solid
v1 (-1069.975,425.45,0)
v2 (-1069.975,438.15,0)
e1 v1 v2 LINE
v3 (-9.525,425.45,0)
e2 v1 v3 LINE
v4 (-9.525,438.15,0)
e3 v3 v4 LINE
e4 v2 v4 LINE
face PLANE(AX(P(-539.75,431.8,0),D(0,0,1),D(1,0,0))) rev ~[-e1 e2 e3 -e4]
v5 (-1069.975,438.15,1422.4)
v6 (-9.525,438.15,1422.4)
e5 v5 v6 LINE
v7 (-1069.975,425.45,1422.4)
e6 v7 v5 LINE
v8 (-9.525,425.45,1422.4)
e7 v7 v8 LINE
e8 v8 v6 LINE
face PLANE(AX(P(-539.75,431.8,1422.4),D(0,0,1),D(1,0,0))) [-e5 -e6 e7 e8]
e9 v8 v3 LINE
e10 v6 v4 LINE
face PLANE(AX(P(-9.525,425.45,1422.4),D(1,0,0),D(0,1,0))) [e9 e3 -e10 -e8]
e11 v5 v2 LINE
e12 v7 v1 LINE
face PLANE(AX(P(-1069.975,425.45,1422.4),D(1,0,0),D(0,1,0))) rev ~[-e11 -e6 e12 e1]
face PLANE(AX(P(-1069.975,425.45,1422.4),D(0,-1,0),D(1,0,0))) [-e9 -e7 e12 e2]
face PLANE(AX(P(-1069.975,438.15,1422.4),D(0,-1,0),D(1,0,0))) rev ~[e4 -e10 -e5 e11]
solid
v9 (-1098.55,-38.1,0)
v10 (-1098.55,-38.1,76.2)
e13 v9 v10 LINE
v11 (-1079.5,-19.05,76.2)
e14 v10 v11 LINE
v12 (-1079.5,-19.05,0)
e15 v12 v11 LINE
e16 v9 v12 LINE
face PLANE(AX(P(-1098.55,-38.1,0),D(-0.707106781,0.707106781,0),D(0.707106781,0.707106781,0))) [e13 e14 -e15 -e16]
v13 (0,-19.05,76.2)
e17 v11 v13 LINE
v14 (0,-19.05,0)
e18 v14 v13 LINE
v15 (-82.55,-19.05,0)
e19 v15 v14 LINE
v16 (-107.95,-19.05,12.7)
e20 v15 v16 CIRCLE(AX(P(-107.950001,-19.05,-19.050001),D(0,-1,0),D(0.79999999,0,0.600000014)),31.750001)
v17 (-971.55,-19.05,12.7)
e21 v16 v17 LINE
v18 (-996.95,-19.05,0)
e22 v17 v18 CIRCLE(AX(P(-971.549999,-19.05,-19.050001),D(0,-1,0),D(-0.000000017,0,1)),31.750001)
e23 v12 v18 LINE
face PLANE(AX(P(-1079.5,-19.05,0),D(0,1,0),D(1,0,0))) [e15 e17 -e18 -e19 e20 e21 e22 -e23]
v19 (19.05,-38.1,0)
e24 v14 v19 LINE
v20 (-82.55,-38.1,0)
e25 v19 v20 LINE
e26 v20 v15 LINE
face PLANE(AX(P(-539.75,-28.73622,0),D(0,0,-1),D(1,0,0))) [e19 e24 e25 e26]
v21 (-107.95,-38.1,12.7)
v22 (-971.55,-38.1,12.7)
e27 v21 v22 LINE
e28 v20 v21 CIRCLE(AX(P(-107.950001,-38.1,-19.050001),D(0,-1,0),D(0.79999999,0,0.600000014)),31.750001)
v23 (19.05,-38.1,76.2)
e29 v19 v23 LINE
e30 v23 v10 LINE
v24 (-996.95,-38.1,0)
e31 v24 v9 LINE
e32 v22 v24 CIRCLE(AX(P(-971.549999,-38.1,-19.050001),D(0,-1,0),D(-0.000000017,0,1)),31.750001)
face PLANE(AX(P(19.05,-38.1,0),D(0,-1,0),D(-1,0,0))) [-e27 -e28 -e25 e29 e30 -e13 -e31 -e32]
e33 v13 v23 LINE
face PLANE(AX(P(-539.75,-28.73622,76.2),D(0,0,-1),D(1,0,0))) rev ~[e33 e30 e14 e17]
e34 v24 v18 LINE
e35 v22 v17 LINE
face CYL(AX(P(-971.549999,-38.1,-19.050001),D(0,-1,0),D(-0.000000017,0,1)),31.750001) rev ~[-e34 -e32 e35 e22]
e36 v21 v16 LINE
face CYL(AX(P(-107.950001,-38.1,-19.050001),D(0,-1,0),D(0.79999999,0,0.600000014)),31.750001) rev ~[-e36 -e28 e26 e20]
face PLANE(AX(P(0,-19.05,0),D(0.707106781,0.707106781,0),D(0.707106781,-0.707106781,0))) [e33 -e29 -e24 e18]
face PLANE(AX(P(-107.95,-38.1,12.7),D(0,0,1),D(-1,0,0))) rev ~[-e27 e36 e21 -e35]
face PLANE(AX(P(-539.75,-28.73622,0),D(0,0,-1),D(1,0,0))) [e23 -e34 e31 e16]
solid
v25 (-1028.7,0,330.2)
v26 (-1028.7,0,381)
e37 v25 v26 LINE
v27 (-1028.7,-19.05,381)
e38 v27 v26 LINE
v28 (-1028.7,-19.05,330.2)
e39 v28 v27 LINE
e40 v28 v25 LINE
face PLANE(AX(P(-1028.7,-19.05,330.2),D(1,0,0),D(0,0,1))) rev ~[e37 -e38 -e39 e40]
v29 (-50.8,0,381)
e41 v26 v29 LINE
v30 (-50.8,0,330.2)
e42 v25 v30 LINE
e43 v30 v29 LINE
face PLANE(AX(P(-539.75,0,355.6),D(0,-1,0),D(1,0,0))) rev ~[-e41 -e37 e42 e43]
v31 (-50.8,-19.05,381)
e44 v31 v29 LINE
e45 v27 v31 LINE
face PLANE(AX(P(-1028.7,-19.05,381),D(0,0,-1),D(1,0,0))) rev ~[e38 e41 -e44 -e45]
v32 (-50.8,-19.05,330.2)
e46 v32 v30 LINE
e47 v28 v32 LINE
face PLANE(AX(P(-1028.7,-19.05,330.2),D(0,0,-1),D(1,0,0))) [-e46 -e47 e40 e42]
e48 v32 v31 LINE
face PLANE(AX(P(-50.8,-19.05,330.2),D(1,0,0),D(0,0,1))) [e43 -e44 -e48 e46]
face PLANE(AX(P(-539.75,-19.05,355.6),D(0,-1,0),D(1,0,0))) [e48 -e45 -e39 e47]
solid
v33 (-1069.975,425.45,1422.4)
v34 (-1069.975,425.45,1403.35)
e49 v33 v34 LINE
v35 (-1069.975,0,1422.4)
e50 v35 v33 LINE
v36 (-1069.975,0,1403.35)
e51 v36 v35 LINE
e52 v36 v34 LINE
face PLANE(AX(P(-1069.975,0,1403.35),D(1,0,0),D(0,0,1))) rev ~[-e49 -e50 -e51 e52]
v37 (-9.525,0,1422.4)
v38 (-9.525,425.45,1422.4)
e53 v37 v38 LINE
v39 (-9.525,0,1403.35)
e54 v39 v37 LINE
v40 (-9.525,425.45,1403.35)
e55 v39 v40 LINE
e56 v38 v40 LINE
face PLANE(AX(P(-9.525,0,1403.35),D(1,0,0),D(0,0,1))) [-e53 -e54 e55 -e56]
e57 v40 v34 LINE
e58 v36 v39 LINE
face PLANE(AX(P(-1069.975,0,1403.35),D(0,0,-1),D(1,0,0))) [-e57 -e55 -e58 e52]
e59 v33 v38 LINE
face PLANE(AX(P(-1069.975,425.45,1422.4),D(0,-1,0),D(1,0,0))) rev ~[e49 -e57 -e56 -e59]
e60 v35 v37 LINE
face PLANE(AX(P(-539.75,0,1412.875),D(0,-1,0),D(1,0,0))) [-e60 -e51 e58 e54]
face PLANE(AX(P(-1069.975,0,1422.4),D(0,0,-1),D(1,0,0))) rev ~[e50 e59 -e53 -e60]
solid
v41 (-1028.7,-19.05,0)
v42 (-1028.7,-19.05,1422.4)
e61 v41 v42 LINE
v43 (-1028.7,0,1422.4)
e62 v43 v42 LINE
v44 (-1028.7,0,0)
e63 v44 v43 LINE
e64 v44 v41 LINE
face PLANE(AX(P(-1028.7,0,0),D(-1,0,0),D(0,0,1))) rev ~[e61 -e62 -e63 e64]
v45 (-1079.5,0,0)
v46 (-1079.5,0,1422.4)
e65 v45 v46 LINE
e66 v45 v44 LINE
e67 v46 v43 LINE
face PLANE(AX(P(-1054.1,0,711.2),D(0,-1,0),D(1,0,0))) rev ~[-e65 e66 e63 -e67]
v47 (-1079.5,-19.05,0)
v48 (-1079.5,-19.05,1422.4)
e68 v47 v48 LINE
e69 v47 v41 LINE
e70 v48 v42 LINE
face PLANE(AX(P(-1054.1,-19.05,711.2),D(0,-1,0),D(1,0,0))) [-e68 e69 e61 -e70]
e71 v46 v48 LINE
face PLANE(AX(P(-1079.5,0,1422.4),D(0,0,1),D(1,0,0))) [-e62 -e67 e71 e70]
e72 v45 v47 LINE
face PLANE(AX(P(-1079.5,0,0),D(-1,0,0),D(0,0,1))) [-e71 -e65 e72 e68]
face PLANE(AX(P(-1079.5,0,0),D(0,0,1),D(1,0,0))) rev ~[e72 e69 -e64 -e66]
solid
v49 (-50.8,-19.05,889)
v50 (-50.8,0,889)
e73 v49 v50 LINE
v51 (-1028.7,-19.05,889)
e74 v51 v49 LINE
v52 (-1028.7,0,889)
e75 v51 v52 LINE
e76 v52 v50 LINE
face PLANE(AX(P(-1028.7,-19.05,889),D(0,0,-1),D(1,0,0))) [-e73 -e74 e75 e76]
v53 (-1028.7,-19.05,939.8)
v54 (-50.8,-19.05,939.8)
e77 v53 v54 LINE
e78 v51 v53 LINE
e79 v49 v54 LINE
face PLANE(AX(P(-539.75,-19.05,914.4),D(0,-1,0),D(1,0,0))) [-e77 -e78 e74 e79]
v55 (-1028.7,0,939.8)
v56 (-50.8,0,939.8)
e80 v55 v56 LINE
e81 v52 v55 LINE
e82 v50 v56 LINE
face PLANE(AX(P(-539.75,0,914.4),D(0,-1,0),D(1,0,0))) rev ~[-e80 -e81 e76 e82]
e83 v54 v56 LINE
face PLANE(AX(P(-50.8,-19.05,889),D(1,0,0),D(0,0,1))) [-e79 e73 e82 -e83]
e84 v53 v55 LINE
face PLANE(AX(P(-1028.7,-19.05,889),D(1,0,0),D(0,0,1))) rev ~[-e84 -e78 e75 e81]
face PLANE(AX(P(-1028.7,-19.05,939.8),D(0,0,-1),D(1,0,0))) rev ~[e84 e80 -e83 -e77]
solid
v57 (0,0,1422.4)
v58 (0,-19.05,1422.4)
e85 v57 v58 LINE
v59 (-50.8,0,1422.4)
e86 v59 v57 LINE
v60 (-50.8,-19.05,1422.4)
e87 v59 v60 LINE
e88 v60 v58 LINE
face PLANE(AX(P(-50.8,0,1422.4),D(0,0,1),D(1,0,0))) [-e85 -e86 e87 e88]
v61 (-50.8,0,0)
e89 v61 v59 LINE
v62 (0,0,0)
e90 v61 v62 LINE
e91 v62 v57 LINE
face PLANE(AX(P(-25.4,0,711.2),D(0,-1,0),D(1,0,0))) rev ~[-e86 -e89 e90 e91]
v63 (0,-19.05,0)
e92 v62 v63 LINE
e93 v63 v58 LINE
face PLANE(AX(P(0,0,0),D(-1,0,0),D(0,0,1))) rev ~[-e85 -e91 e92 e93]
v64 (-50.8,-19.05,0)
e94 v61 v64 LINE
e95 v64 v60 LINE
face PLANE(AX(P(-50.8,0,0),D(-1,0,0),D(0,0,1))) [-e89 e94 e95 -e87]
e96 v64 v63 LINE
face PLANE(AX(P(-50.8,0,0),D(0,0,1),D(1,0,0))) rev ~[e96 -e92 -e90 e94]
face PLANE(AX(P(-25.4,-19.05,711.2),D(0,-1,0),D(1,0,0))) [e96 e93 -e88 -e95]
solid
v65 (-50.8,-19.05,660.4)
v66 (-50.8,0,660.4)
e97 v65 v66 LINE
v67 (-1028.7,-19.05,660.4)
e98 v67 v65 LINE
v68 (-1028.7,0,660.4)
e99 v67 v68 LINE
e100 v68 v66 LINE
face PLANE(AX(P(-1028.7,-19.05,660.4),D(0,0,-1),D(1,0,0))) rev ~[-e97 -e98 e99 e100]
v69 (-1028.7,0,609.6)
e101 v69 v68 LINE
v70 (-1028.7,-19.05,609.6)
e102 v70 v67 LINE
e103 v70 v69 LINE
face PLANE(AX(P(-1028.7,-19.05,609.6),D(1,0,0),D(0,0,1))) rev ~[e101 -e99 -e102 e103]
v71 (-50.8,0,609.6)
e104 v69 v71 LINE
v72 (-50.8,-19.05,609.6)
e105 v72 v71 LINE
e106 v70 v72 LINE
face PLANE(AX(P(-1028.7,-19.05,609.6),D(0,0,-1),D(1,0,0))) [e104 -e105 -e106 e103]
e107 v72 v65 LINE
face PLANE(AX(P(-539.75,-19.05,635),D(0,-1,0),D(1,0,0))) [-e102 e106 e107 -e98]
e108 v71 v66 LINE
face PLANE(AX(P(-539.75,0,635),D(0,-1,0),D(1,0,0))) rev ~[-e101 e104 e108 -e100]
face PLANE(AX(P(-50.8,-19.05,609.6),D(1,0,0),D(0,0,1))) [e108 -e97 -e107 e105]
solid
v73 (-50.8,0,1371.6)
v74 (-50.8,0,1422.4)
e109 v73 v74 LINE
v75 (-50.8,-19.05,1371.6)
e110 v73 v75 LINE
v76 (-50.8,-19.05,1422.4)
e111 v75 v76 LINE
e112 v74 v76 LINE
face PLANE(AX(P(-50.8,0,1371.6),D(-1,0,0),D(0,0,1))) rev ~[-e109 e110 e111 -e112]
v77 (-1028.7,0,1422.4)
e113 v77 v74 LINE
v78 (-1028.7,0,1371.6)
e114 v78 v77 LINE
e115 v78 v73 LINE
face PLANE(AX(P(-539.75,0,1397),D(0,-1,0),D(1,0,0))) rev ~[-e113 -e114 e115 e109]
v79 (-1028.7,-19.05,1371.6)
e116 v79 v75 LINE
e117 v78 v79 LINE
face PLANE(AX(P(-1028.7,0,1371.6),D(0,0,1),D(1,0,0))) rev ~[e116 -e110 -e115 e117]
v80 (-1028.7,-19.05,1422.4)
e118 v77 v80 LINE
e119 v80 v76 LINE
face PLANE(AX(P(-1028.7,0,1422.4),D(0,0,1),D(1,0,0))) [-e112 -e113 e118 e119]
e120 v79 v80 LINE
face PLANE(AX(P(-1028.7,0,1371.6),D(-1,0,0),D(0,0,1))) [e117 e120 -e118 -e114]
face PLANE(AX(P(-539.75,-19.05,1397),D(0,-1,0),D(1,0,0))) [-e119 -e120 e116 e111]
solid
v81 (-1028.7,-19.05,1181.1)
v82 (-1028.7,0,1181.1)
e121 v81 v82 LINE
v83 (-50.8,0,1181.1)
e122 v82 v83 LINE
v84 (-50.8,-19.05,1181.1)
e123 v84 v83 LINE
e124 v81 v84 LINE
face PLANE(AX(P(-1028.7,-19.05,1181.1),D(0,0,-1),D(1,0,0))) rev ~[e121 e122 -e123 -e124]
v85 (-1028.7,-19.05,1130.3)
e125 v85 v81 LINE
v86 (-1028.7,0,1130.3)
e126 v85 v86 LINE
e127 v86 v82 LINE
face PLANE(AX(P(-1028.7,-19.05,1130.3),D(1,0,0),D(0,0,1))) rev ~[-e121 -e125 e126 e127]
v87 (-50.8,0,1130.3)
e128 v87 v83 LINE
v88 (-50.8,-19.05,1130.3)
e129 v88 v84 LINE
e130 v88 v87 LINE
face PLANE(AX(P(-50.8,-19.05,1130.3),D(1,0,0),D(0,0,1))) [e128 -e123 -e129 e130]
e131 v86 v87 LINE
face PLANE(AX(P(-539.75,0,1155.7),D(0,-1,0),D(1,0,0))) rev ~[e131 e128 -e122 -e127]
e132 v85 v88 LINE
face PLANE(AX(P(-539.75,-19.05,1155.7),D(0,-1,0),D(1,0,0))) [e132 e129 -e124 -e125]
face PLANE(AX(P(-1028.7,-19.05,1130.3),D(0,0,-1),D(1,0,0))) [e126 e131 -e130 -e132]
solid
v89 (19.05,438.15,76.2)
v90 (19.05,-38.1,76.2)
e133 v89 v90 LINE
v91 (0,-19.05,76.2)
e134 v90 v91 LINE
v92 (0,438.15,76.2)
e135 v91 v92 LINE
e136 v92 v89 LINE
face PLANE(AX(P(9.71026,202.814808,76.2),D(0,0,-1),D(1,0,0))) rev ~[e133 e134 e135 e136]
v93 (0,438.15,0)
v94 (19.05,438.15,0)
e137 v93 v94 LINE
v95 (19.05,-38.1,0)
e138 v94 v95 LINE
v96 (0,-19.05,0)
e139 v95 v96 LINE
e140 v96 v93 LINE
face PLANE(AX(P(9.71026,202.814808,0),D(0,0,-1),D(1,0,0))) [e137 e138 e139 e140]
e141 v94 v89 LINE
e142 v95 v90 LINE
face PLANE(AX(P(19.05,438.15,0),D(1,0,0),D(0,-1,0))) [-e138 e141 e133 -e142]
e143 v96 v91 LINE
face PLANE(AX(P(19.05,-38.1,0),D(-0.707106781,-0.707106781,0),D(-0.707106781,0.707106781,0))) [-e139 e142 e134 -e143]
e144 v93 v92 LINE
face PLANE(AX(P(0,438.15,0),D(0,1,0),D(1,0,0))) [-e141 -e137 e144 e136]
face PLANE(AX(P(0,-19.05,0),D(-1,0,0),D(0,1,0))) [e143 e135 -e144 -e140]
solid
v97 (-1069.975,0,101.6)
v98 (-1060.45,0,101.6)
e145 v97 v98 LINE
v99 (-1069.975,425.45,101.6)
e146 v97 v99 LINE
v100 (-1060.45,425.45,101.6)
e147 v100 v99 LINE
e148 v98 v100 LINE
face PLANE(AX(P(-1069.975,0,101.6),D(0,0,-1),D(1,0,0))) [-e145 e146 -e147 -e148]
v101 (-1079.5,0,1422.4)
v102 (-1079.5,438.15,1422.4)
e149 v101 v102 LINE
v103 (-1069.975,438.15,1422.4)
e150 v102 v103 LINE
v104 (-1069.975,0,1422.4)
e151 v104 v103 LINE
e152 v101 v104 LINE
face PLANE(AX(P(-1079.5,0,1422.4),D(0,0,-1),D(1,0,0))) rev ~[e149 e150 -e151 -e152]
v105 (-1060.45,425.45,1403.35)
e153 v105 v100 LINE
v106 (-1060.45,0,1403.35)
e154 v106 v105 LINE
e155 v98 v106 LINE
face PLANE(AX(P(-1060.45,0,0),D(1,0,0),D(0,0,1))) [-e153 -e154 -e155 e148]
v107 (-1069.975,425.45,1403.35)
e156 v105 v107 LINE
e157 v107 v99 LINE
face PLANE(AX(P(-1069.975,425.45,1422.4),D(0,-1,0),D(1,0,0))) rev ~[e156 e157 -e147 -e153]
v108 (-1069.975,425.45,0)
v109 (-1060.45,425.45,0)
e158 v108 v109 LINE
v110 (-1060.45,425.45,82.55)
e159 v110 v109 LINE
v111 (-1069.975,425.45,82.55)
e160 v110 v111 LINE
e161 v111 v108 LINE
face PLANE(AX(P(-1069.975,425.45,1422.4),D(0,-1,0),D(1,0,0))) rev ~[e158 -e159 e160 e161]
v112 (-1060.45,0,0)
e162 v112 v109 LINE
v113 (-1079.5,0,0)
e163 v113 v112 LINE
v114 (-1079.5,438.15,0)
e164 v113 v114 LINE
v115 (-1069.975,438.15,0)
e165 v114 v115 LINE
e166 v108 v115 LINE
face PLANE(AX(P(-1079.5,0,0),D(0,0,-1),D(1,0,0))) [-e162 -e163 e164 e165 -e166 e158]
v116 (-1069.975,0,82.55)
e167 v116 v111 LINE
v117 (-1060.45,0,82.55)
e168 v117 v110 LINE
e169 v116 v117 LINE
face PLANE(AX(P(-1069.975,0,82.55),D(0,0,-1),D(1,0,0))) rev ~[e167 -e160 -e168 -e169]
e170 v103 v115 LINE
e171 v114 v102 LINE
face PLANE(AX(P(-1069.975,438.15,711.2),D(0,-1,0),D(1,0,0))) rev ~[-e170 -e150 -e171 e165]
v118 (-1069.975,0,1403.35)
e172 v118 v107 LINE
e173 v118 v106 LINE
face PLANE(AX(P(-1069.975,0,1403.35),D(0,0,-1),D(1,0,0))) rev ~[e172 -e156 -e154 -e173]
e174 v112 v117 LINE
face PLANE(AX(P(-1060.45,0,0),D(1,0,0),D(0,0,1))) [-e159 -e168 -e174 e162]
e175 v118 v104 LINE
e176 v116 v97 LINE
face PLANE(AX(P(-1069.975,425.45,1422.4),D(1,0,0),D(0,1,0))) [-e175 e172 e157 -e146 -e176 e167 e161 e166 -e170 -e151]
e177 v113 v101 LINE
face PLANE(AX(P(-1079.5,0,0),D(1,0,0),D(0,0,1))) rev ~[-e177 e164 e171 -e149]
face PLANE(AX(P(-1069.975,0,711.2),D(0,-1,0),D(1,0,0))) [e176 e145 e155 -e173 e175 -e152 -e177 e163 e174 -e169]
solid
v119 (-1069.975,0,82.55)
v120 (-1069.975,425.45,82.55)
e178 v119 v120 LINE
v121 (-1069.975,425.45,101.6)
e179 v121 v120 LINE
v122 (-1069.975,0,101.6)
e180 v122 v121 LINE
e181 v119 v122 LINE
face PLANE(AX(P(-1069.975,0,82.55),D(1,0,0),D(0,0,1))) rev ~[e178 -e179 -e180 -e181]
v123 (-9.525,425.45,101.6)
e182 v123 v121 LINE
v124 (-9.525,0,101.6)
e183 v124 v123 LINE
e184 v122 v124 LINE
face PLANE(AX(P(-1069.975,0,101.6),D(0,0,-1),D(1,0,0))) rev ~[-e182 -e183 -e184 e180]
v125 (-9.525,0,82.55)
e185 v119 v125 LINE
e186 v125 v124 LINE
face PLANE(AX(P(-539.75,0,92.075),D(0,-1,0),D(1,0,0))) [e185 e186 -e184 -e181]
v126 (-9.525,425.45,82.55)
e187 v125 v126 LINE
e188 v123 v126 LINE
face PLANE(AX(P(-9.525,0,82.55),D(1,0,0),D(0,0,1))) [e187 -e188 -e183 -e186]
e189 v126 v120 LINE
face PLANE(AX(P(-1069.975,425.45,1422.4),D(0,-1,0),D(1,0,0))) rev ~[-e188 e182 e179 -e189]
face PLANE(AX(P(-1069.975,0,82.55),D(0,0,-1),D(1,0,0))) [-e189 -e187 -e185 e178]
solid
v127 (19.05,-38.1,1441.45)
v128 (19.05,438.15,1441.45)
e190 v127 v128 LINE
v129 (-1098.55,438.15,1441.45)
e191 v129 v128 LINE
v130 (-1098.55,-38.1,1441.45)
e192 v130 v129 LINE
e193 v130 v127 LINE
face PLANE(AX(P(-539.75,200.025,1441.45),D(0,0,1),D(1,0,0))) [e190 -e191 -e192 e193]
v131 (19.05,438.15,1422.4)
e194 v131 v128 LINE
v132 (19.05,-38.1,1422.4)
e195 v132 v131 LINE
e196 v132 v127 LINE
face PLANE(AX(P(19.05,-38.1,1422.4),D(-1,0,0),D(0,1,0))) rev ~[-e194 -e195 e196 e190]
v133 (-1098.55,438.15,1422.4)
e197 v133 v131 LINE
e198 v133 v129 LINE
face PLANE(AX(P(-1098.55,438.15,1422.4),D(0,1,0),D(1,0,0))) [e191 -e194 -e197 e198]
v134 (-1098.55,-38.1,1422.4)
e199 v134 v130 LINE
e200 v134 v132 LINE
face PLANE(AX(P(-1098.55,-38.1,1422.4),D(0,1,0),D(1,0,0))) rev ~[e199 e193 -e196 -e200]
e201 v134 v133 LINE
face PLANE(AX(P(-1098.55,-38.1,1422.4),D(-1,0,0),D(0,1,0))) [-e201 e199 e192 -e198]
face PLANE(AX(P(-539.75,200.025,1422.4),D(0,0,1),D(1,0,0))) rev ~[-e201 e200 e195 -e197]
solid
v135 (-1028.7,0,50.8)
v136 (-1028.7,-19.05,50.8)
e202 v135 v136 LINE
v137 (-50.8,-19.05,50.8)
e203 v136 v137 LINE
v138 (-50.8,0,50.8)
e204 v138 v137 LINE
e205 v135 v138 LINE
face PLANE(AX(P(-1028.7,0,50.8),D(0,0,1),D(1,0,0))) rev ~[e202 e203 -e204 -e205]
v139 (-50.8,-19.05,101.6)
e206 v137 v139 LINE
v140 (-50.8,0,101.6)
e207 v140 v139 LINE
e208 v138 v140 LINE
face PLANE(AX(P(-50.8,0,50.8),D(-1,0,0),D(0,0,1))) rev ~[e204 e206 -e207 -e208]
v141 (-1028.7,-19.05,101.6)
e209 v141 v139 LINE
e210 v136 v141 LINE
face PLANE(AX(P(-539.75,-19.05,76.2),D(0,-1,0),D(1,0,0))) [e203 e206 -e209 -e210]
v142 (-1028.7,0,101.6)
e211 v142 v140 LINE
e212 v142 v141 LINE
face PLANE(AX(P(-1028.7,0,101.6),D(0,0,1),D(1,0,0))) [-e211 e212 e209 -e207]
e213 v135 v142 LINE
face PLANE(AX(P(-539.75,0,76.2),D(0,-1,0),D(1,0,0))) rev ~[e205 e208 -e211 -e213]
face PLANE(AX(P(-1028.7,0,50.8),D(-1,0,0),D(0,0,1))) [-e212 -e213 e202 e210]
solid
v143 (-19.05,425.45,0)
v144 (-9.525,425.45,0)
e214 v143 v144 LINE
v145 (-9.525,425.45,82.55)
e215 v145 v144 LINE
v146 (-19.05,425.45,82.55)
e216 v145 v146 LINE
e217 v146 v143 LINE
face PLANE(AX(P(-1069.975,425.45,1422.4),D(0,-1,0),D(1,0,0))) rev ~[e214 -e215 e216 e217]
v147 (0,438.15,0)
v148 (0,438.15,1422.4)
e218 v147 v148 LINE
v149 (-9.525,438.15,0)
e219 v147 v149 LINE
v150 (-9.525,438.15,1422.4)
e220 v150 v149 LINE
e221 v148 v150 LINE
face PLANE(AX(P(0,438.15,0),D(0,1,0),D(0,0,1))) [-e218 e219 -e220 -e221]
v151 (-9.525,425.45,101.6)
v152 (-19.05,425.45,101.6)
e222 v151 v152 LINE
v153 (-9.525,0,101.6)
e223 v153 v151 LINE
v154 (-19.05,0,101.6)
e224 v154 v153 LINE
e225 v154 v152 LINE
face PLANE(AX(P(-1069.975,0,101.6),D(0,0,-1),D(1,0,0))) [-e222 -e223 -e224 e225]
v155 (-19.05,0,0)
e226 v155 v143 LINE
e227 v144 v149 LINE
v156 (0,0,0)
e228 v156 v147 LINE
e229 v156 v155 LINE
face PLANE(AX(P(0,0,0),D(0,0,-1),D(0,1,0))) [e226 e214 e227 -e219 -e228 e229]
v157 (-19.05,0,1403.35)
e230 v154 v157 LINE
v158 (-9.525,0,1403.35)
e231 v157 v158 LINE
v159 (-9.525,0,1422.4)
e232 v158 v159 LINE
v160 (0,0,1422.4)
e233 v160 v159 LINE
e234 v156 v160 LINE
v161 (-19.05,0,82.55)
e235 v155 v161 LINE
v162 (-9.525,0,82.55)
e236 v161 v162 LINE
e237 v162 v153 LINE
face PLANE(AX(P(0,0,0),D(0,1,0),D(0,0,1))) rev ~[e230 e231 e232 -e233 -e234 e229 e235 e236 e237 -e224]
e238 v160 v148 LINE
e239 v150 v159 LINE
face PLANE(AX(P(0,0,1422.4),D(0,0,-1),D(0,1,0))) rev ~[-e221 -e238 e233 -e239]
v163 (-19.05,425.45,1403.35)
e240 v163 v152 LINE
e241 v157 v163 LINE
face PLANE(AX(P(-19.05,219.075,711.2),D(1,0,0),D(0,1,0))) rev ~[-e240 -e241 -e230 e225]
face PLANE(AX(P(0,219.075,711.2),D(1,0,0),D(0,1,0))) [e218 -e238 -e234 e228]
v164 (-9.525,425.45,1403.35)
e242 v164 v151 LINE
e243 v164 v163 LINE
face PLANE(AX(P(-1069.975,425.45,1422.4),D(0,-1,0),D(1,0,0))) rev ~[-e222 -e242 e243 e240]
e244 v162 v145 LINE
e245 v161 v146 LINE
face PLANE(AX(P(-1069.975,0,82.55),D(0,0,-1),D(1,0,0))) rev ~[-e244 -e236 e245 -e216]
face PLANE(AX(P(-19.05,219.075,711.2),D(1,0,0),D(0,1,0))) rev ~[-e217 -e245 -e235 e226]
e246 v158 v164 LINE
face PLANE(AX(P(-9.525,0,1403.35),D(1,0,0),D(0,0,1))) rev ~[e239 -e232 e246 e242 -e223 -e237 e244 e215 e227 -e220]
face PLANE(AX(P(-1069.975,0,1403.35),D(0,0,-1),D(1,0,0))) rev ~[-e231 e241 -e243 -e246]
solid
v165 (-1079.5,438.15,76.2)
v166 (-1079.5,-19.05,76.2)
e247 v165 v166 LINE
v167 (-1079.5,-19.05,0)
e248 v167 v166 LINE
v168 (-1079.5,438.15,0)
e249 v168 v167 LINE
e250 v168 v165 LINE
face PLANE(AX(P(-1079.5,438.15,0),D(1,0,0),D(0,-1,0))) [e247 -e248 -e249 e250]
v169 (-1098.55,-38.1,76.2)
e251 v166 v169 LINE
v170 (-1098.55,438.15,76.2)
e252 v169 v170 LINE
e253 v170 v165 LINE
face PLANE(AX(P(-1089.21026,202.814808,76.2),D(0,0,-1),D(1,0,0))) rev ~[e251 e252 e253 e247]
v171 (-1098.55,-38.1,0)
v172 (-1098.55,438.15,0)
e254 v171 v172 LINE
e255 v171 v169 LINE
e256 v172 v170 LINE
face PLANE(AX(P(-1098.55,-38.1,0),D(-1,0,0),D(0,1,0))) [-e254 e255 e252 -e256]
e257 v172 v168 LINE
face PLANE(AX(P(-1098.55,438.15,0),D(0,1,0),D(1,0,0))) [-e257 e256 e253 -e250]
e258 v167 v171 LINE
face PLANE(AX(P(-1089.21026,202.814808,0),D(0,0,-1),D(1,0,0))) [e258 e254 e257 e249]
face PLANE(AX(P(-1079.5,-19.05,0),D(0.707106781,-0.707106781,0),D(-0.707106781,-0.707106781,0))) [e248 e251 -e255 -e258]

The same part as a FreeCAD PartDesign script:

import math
import FreeCAD as App
import Part
import Sketcher
Q = App.Units.Quantity


def add_polygon(sketch, points):
    """Adds a closed chain of lines whose ends are joined by coincident constraints."""
    first, n = sketch.GeometryCount, len(points)
    for a, b in zip(points, points[1:] + points[:1]):
        sketch.addGeometry(Part.LineSegment(App.Vector(*a, 0), App.Vector(*b, 0)), False)
    for i in range(n):
        sketch.addConstraint(Sketcher.Constraint("Coincident", first + i, 2, first + (i + 1) % n, 1))

doc = App.newDocument("Part")
params = doc.addObject("Spreadsheet::Sheet", "Params")
for row, (alias, value) in enumerate([
    ("sketch1_height", "56 in"),
    ("sketch1_width", "17.25 in"),
    ("pad1_length", "0.75 in"),
    ("sketch2_width", "41.75 in"),
    ("sketch2_height", "0.75 in"),
    ("pad2_length", "17.25 in"),
    ("sketch3_height", "56 in"),
    ("sketch3_width", "0.75 in"),
    ("pad3_length", "17.25 in"),
    ("sketch4_width", "41.75 in"),
    ("sketch4_height", "0.75 in"),
    ("pad4_length", "17.25 in"),
    ("sketch5_height", "0.5 in"),
    ("sketch5_width", "41.75 in"),
    ("pad5_length", "56 in"),
    ("sketch6_width", "2 in"),
    ("sketch6_height", "56 in"),
    ("pad6_length", "0.75 in"),
    ("sketch7_width", "2 in"),
    ("sketch7_height", "56 in"),
    ("pad7_length", "0.75 in"),
    ("sketch8_height", "2 in"),
    ("sketch8_width", "38.5 in"),
    ("pad8_length", "0.75 in"),
    ("sketch9_height", "2 in"),
    ("sketch9_width", "38.5 in"),
    ("pad9_length", "0.75 in"),
    ("sketch10_height", "2 in"),
    ("sketch10_width", "38.5 in"),
    ("pad10_length", "0.75 in"),
    ("sketch11_height", "2 in"),
    ("sketch11_width", "38.5 in"),
    ("pad11_length", "0.75 in"),
    ("sketch12_height", "2 in"),
    ("sketch12_width", "38.5 in"),
    ("pad12_length", "0.75 in"),
    ("sketch13_height", "2 in"),
    ("sketch13_width", "38.5 in"),
    ("pad13_length", "0.75 in"),
    ("sketch14_width", "44 in"),
    ("sketch14_height", "18.75 in"),
    ("pad14_length", "0.75 in"),
    ("sketch15_height", "18 in"),
    ("sketch15_width", "0.75 in"),
    ("pad15_length", "3 in"),
    ("sketch16_height", "18 in"),
    ("sketch16_width", "0.75 in"),
    ("pad16_length", "3 in"),
    ("sketch17_width", "44 in"),
    ("sketch17_width2", "42.5 in"),
    ("pad17_length", "3 in"),
    ("sketch18_width", "34 in"),
    ("sketch18_width2", "36 in"),
    ("sketch18_radius", "1.25 in"),
    ("pocket1_length", "0.75 in"),
], start=1):
    params.set(f"A{row}", alias)
    params.set(f"B{row}", "=" + value)
    params.setAlias(f"B{row}", alias)

body = doc.addObject("PartDesign::Body", "Body")

# Sketch on YZ plane
sketch1 = body.newObject("Sketcher::SketchObject", "Sketch")
sketch1.AttachmentSupport = (doc.getObject("YZ_Plane"), [""])
sketch1.MapMode = "FlatFace"
add_polygon(sketch1, [(0, 1422), (0, 0), (438, 0), (438, 1422)])  # lines 0-3
sketch1.addConstraint(Sketcher.Constraint("Vertical", 0))
sketch1.addConstraint(Sketcher.Constraint("Horizontal", 1))
sketch1.addConstraint(Sketcher.Constraint("Vertical", 2))
sketch1.addConstraint(Sketcher.Constraint("Horizontal", 3))
sketch1.addConstraint(Sketcher.Constraint("Coincident", 0, 2, -1, 1))
sketch1.addConstraint(Sketcher.Constraint("DistanceY", 0, 2, 0, 1, Q("56 in")))
sketch1.addConstraint(Sketcher.Constraint("DistanceX", 1, 1, 1, 2, Q("17.25 in")))
sketch1.setExpression("Constraints[9]", "Params.sketch1_height")
sketch1.setExpression("Constraints[10]", "Params.sketch1_width")
pad1 = body.newObject("PartDesign::Pad", "Pad")
pad1.Profile = sketch1
pad1.setExpression("Length", "Params.pad1_length")
pad1.Reversed = True
body2 = doc.addObject("PartDesign::Body", "Body001")

# Sketch on XZ plane
sketch2 = body2.newObject("Sketcher::SketchObject", "Sketch001")
sketch2.AttachmentSupport = (doc.getObject("XZ_Plane001"), [""])
sketch2.MapMode = "FlatFace"
add_polygon(sketch2, [(-1070, 102), (-1070, 83), (-10, 83), (-10, 102)])  # lines 0-3
sketch2.addConstraint(Sketcher.Constraint("Vertical", 0))
sketch2.addConstraint(Sketcher.Constraint("Horizontal", 1))
sketch2.addConstraint(Sketcher.Constraint("Vertical", 2))
sketch2.addConstraint(Sketcher.Constraint("Horizontal", 3))
sketch2.addConstraint(Sketcher.Constraint("DistanceY", -1, 1, 2, 2, Q("4 in")))
sketch2.addConstraint(Sketcher.Constraint("DistanceX", 1, 1, 1, 2, Q("41.75 in")))
sketch2.addConstraint(Sketcher.Constraint("DistanceY", 0, 2, 0, 1, Q("0.75 in")))
sketch2.addConstraint(Sketcher.Constraint("DistanceX", 0, 2, -1, 1, Q("42.125 in")))
sketch2.setExpression("Constraints[9]", "Params.sketch2_width")
sketch2.setExpression("Constraints[10]", "Params.sketch2_height")
pad2 = body2.newObject("PartDesign::Pad", "Pad001")
pad2.Profile = sketch2
pad2.setExpression("Length", "Params.pad2_length")
pad2.Reversed = True
doc.recompute()

body3 = doc.addObject("PartDesign::Body", "Body002")
body3.BaseFeature = body2
boolean = body.newObject("PartDesign::Boolean", "Boolean")
boolean.Type = "Cut"
boolean.addObjects([body3])
doc.recompute()
body4 = doc.addObject("PartDesign::Body", "Body003")

# Sketch on XZ plane
sketch3 = body4.newObject("Sketcher::SketchObject", "Sketch002")
sketch3.AttachmentSupport = (doc.getObject("XZ_Plane003"), [""])
sketch3.MapMode = "FlatFace"
add_polygon(sketch3, [(-1080, 1422), (-1080, 0), (-1060, 0), (-1060, 1422)])  # lines 0-3
sketch3.addConstraint(Sketcher.Constraint("Vertical", 0))
sketch3.addConstraint(Sketcher.Constraint("Horizontal", 1))
sketch3.addConstraint(Sketcher.Constraint("Vertical", 2))
sketch3.addConstraint(Sketcher.Constraint("Horizontal", 3))
sketch3.addConstraint(Sketcher.Constraint("PointOnObject", 0, 2, -1))
sketch3.addConstraint(Sketcher.Constraint("DistanceY", 0, 2, 0, 1, Q("56 in")))
sketch3.addConstraint(Sketcher.Constraint("DistanceX", 1, 1, 1, 2, Q("0.75 in")))
sketch3.addConstraint(Sketcher.Constraint("DistanceX", 0, 2, -1, 1, Q("42.5 in")))
sketch3.setExpression("Constraints[9]", "Params.sketch3_height")
sketch3.setExpression("Constraints[10]", "Params.sketch3_width")
pad3 = body4.newObject("PartDesign::Pad", "Pad002")
pad3.Profile = sketch3
pad3.setExpression("Length", "Params.pad3_length")
pad3.Reversed = True
doc.recompute()

body5 = doc.addObject("PartDesign::Body", "Body004")
body5.BaseFeature = body2
boolean2 = body4.newObject("PartDesign::Boolean", "Boolean001")
boolean2.Type = "Cut"
boolean2.addObjects([body5])
doc.recompute()
body6 = doc.addObject("PartDesign::Body", "Body005")

# Sketch on XZ plane
sketch4 = body6.newObject("Sketcher::SketchObject", "Sketch003")
sketch4.AttachmentSupport = (doc.getObject("XZ_Plane005"), [""])
sketch4.MapMode = "FlatFace"
add_polygon(sketch4, [(-1070, 1422), (-1070, 1403), (-10, 1403), (-10, 1422)])  # lines 0-3
sketch4.addConstraint(Sketcher.Constraint("Vertical", 0))
sketch4.addConstraint(Sketcher.Constraint("Horizontal", 1))
sketch4.addConstraint(Sketcher.Constraint("Vertical", 2))
sketch4.addConstraint(Sketcher.Constraint("Horizontal", 3))
sketch4.addConstraint(Sketcher.Constraint("DistanceY", -1, 1, 2, 2, Q("56 in")))
sketch4.addConstraint(Sketcher.Constraint("DistanceX", 1, 1, 1, 2, Q("41.75 in")))
sketch4.addConstraint(Sketcher.Constraint("DistanceY", 0, 2, 0, 1, Q("0.75 in")))
sketch4.addConstraint(Sketcher.Constraint("DistanceX", 0, 2, -1, 1, Q("42.125 in")))
sketch4.setExpression("Constraints[9]", "Params.sketch4_width")
sketch4.setExpression("Constraints[10]", "Params.sketch4_height")
pad4 = body6.newObject("PartDesign::Pad", "Pad003")
pad4.Profile = sketch4
pad4.setExpression("Length", "Params.pad4_length")
pad4.Reversed = True
doc.recompute()

body7 = doc.addObject("PartDesign::Body", "Body006")
body7.BaseFeature = body6
boolean3 = body4.newObject("PartDesign::Boolean", "Boolean002")
boolean3.Type = "Cut"
boolean3.addObjects([body7])
doc.recompute()

body8 = doc.addObject("PartDesign::Body", "Body007")
body8.BaseFeature = body6
boolean4 = body.newObject("PartDesign::Boolean", "Boolean003")
boolean4.Type = "Cut"
boolean4.addObjects([body8])
doc.recompute()
body9 = doc.addObject("PartDesign::Body", "Body008")

# Sketch on XY plane
sketch5 = body9.newObject("Sketcher::SketchObject", "Sketch004")
sketch5.AttachmentSupport = (doc.getObject("XY_Plane008"), [""])
sketch5.MapMode = "FlatFace"
sketch5.AttachmentOffset = App.Placement(App.Vector(0, 0, 56 * 25.4), App.Rotation())
add_polygon(sketch5, [(-1070, 438), (-1070, 425), (-10, 425), (-10, 438)])  # lines 0-3
sketch5.addConstraint(Sketcher.Constraint("Vertical", 0))
sketch5.addConstraint(Sketcher.Constraint("Horizontal", 1))
sketch5.addConstraint(Sketcher.Constraint("Vertical", 2))
sketch5.addConstraint(Sketcher.Constraint("Horizontal", 3))
sketch5.addConstraint(Sketcher.Constraint("DistanceY", 0, 2, 0, 1, Q("0.5 in")))
sketch5.addConstraint(Sketcher.Constraint("DistanceX", 1, 1, 1, 2, Q("41.75 in")))
sketch5.addConstraint(Sketcher.Constraint("DistanceY", -1, 1, 0, 2, Q("16.75 in")))
sketch5.addConstraint(Sketcher.Constraint("DistanceX", 0, 2, -1, 1, Q("42.125 in")))
sketch5.setExpression("Constraints[8]", "Params.sketch5_height")
sketch5.setExpression("Constraints[9]", "Params.sketch5_width")
pad5 = body9.newObject("PartDesign::Pad", "Pad004")
pad5.Profile = sketch5
pad5.setExpression("Length", "Params.pad5_length")
pad5.Reversed = True
doc.recompute()

body10 = doc.addObject("PartDesign::Body", "Body009")
body10.BaseFeature = body9
boolean5 = body4.newObject("PartDesign::Boolean", "Boolean004")
boolean5.Type = "Cut"
boolean5.addObjects([body10])
doc.recompute()

body11 = doc.addObject("PartDesign::Body", "Body010")
body11.BaseFeature = body9
boolean6 = body6.newObject("PartDesign::Boolean", "Boolean005")
boolean6.Type = "Cut"
boolean6.addObjects([body11])
doc.recompute()

body12 = doc.addObject("PartDesign::Body", "Body011")
body12.BaseFeature = body9
boolean7 = body.newObject("PartDesign::Boolean", "Boolean006")
boolean7.Type = "Cut"
boolean7.addObjects([body12])
doc.recompute()

body13 = doc.addObject("PartDesign::Body", "Body012")
body13.BaseFeature = body9
boolean8 = body2.newObject("PartDesign::Boolean", "Boolean007")
boolean8.Type = "Cut"
boolean8.addObjects([body13])
doc.recompute()
body14 = doc.addObject("PartDesign::Body", "Body013")

# Sketch on XZ plane
sketch6 = body14.newObject("Sketcher::SketchObject", "Sketch005")
sketch6.AttachmentSupport = (doc.getObject("XZ_Plane013"), [""])
sketch6.MapMode = "FlatFace"
add_polygon(sketch6, [(-1080, 1422), (-1080, 0), (-1029, 0), (-1029, 1422)])  # lines 0-3
sketch6.addConstraint(Sketcher.Constraint("Vertical", 0))
sketch6.addConstraint(Sketcher.Constraint("Horizontal", 1))
sketch6.addConstraint(Sketcher.Constraint("Vertical", 2))
sketch6.addConstraint(Sketcher.Constraint("Horizontal", 3))
sketch6.addConstraint(Sketcher.Constraint("PointOnObject", 0, 2, -1))
sketch6.addConstraint(Sketcher.Constraint("DistanceX", 1, 1, 1, 2, Q("2 in")))
sketch6.addConstraint(Sketcher.Constraint("DistanceY", 0, 2, 0, 1, Q("56 in")))
sketch6.addConstraint(Sketcher.Constraint("DistanceX", 0, 2, -1, 1, Q("42.5 in")))
sketch6.setExpression("Constraints[9]", "Params.sketch6_width")
sketch6.setExpression("Constraints[10]", "Params.sketch6_height")
pad6 = body14.newObject("PartDesign::Pad", "Pad005")
pad6.Profile = sketch6
pad6.setExpression("Length", "Params.pad6_length")
body15 = doc.addObject("PartDesign::Body", "Body014")

# Sketch on XZ plane
sketch7 = body15.newObject("Sketcher::SketchObject", "Sketch006")
sketch7.AttachmentSupport = (doc.getObject("XZ_Plane014"), [""])
sketch7.MapMode = "FlatFace"
add_polygon(sketch7, [(-51, 1422), (-51, 0), (0, 0), (0, 1422)])  # lines 0-3
sketch7.addConstraint(Sketcher.Constraint("Vertical", 0))
sketch7.addConstraint(Sketcher.Constraint("Horizontal", 1))
sketch7.addConstraint(Sketcher.Constraint("Vertical", 2))
sketch7.addConstraint(Sketcher.Constraint("Horizontal", 3))
sketch7.addConstraint(Sketcher.Constraint("Coincident", 1, 2, -1, 1))
sketch7.addConstraint(Sketcher.Constraint("DistanceX", 1, 1, 1, 2, Q("2 in")))
sketch7.addConstraint(Sketcher.Constraint("DistanceY", 0, 2, 0, 1, Q("56 in")))
sketch7.setExpression("Constraints[9]", "Params.sketch7_width")
sketch7.setExpression("Constraints[10]", "Params.sketch7_height")
pad7 = body15.newObject("PartDesign::Pad", "Pad006")
pad7.Profile = sketch7
pad7.setExpression("Length", "Params.pad7_length")
body16 = doc.addObject("PartDesign::Body", "Body015")

# Sketch on XZ plane
sketch8 = body16.newObject("Sketcher::SketchObject", "Sketch007")
sketch8.AttachmentSupport = (doc.getObject("XZ_Plane015"), [""])
sketch8.MapMode = "FlatFace"
add_polygon(sketch8, [(-1029, 102), (-1029, 51), (-51, 51), (-51, 102)])  # lines 0-3
sketch8.addConstraint(Sketcher.Constraint("Vertical", 0))
sketch8.addConstraint(Sketcher.Constraint("Horizontal", 1))
sketch8.addConstraint(Sketcher.Constraint("Vertical", 2))
sketch8.addConstraint(Sketcher.Constraint("Horizontal", 3))
sketch8.addConstraint(Sketcher.Constraint("DistanceY", 0, 2, 0, 1, Q("2 in")))
sketch8.addConstraint(Sketcher.Constraint("DistanceX", 1, 1, 1, 2, Q("38.5 in")))
sketch8.addConstraint(Sketcher.Constraint("DistanceY", -1, 1, 0, 2, Q("2 in")))
sketch8.addConstraint(Sketcher.Constraint("DistanceX", 1, 2, -1, 1, Q("2 in")))
sketch8.setExpression("Constraints[8]", "Params.sketch8_height")
sketch8.setExpression("Constraints[9]", "Params.sketch8_width")
pad8 = body16.newObject("PartDesign::Pad", "Pad007")
pad8.Profile = sketch8
pad8.setExpression("Length", "Params.pad8_length")
body17 = doc.addObject("PartDesign::Body", "Body016")

# Sketch on XZ plane
sketch9 = body17.newObject("Sketcher::SketchObject", "Sketch008")
sketch9.AttachmentSupport = (doc.getObject("XZ_Plane016"), [""])
sketch9.MapMode = "FlatFace"
add_polygon(sketch9, [(-1029, 1422), (-1029, 1372), (-51, 1372), (-51, 1422)])  # lines 0-3
sketch9.addConstraint(Sketcher.Constraint("Vertical", 0))
sketch9.addConstraint(Sketcher.Constraint("Horizontal", 1))
sketch9.addConstraint(Sketcher.Constraint("Vertical", 2))
sketch9.addConstraint(Sketcher.Constraint("Horizontal", 3))
sketch9.addConstraint(Sketcher.Constraint("DistanceY", 0, 2, 0, 1, Q("2 in")))
sketch9.addConstraint(Sketcher.Constraint("DistanceX", 1, 1, 1, 2, Q("38.5 in")))
sketch9.addConstraint(Sketcher.Constraint("DistanceY", -1, 1, 0, 2, Q("54 in")))
sketch9.addConstraint(Sketcher.Constraint("DistanceX", 1, 2, -1, 1, Q("2 in")))
sketch9.setExpression("Constraints[8]", "Params.sketch9_height")
sketch9.setExpression("Constraints[9]", "Params.sketch9_width")
pad9 = body17.newObject("PartDesign::Pad", "Pad008")
pad9.Profile = sketch9
pad9.setExpression("Length", "Params.pad9_length")
body18 = doc.addObject("PartDesign::Body", "Body017")

# Sketch on XZ plane
sketch10 = body18.newObject("Sketcher::SketchObject", "Sketch009")
sketch10.AttachmentSupport = (doc.getObject("XZ_Plane017"), [""])
sketch10.MapMode = "FlatFace"
sketch10.AttachmentOffset = App.Placement(App.Vector(0, 0, 0.75 * 25.4), App.Rotation())
add_polygon(sketch10, [(-1029, 381), (-1029, 330), (-51, 330), (-51, 381)])  # lines 0-3
sketch10.addConstraint(Sketcher.Constraint("Vertical", 0))
sketch10.addConstraint(Sketcher.Constraint("Horizontal", 1))
sketch10.addConstraint(Sketcher.Constraint("Vertical", 2))
sketch10.addConstraint(Sketcher.Constraint("Horizontal", 3))
sketch10.addConstraint(Sketcher.Constraint("DistanceY", 0, 2, 0, 1, Q("2 in")))
sketch10.addConstraint(Sketcher.Constraint("DistanceX", 1, 1, 1, 2, Q("38.5 in")))
sketch10.addConstraint(Sketcher.Constraint("DistanceY", -1, 1, 0, 2, Q("13 in")))
sketch10.addConstraint(Sketcher.Constraint("DistanceX", 1, 2, -1, 1, Q("2 in")))
sketch10.setExpression("Constraints[8]", "Params.sketch10_height")
sketch10.setExpression("Constraints[9]", "Params.sketch10_width")
pad10 = body18.newObject("PartDesign::Pad", "Pad009")
pad10.Profile = sketch10
pad10.setExpression("Length", "Params.pad10_length")
pad10.Reversed = True
body19 = doc.addObject("PartDesign::Body", "Body018")

# Sketch on XZ plane
sketch11 = body19.newObject("Sketcher::SketchObject", "Sketch010")
sketch11.AttachmentSupport = (doc.getObject("XZ_Plane018"), [""])
sketch11.MapMode = "FlatFace"
sketch11.AttachmentOffset = App.Placement(App.Vector(0, 0, 0.75 * 25.4), App.Rotation())
add_polygon(sketch11, [(-1029, 660), (-1029, 610), (-51, 610), (-51, 660)])  # lines 0-3
sketch11.addConstraint(Sketcher.Constraint("Vertical", 0))
sketch11.addConstraint(Sketcher.Constraint("Horizontal", 1))
sketch11.addConstraint(Sketcher.Constraint("Vertical", 2))
sketch11.addConstraint(Sketcher.Constraint("Horizontal", 3))
sketch11.addConstraint(Sketcher.Constraint("DistanceY", 0, 2, 0, 1, Q("2 in")))
sketch11.addConstraint(Sketcher.Constraint("DistanceX", 1, 1, 1, 2, Q("38.5 in")))
sketch11.addConstraint(Sketcher.Constraint("DistanceY", -1, 1, 0, 2, Q("24 in")))
sketch11.addConstraint(Sketcher.Constraint("DistanceX", 1, 2, -1, 1, Q("2 in")))
sketch11.setExpression("Constraints[8]", "Params.sketch11_height")
sketch11.setExpression("Constraints[9]", "Params.sketch11_width")
pad11 = body19.newObject("PartDesign::Pad", "Pad010")
pad11.Profile = sketch11
pad11.setExpression("Length", "Params.pad11_length")
pad11.Reversed = True
body20 = doc.addObject("PartDesign::Body", "Body019")

# Sketch on XZ plane
sketch12 = body20.newObject("Sketcher::SketchObject", "Sketch011")
sketch12.AttachmentSupport = (doc.getObject("XZ_Plane019"), [""])
sketch12.MapMode = "FlatFace"
sketch12.AttachmentOffset = App.Placement(App.Vector(0, 0, 0.75 * 25.4), App.Rotation())
add_polygon(sketch12, [(-1029, 940), (-1029, 889), (-51, 889), (-51, 940)])  # lines 0-3
sketch12.addConstraint(Sketcher.Constraint("Vertical", 0))
sketch12.addConstraint(Sketcher.Constraint("Horizontal", 1))
sketch12.addConstraint(Sketcher.Constraint("Vertical", 2))
sketch12.addConstraint(Sketcher.Constraint("Horizontal", 3))
sketch12.addConstraint(Sketcher.Constraint("DistanceY", 0, 2, 0, 1, Q("2 in")))
sketch12.addConstraint(Sketcher.Constraint("DistanceX", 1, 1, 1, 2, Q("38.5 in")))
sketch12.addConstraint(Sketcher.Constraint("DistanceY", -1, 1, 0, 2, Q("35 in")))
sketch12.addConstraint(Sketcher.Constraint("DistanceX", 1, 2, -1, 1, Q("2 in")))
sketch12.setExpression("Constraints[8]", "Params.sketch12_height")
sketch12.setExpression("Constraints[9]", "Params.sketch12_width")
pad12 = body20.newObject("PartDesign::Pad", "Pad011")
pad12.Profile = sketch12
pad12.setExpression("Length", "Params.pad12_length")
pad12.Reversed = True
body21 = doc.addObject("PartDesign::Body", "Body020")

# Sketch on XZ plane
sketch13 = body21.newObject("Sketcher::SketchObject", "Sketch012")
sketch13.AttachmentSupport = (doc.getObject("XZ_Plane020"), [""])
sketch13.MapMode = "FlatFace"
sketch13.AttachmentOffset = App.Placement(App.Vector(0, 0, 0.75 * 25.4), App.Rotation())
add_polygon(sketch13, [(-1029, 1181), (-1029, 1130), (-51, 1130), (-51, 1181)])  # lines 0-3
sketch13.addConstraint(Sketcher.Constraint("Vertical", 0))
sketch13.addConstraint(Sketcher.Constraint("Horizontal", 1))
sketch13.addConstraint(Sketcher.Constraint("Vertical", 2))
sketch13.addConstraint(Sketcher.Constraint("Horizontal", 3))
sketch13.addConstraint(Sketcher.Constraint("DistanceY", 0, 2, 0, 1, Q("2 in")))
sketch13.addConstraint(Sketcher.Constraint("DistanceX", 1, 1, 1, 2, Q("38.5 in")))
sketch13.addConstraint(Sketcher.Constraint("DistanceX", 1, 2, -1, 1, Q("2 in")))
sketch13.addConstraint(Sketcher.Constraint("DistanceY", -1, 1, 0, 2, Q("44.5 in")))
sketch13.setExpression("Constraints[8]", "Params.sketch13_height")
sketch13.setExpression("Constraints[9]", "Params.sketch13_width")
pad13 = body21.newObject("PartDesign::Pad", "Pad012")
pad13.Profile = sketch13
pad13.setExpression("Length", "Params.pad13_length")
pad13.Reversed = True
body22 = doc.addObject("PartDesign::Body", "Body021")

# Sketch on XY plane
sketch14 = body22.newObject("Sketcher::SketchObject", "Sketch013")
sketch14.AttachmentSupport = (doc.getObject("XY_Plane021"), [""])
sketch14.MapMode = "FlatFace"
sketch14.AttachmentOffset = App.Placement(App.Vector(0, 0, 56 * 25.4), App.Rotation())
add_polygon(sketch14, [(-1099, 438), (-1099, -38), (19, -38), (19, 438)])  # lines 0-3
sketch14.addConstraint(Sketcher.Constraint("Vertical", 0))
sketch14.addConstraint(Sketcher.Constraint("Horizontal", 1))
sketch14.addConstraint(Sketcher.Constraint("Vertical", 2))
sketch14.addConstraint(Sketcher.Constraint("Horizontal", 3))
sketch14.addConstraint(Sketcher.Constraint("DistanceX", 1, 1, 1, 2, Q("44 in")))
sketch14.addConstraint(Sketcher.Constraint("DistanceY", 0, 2, 0, 1, Q("18.75 in")))
sketch14.addConstraint(Sketcher.Constraint("DistanceY", 0, 2, -1, 1, Q("1.5 in")))
sketch14.addConstraint(Sketcher.Constraint("DistanceX", 0, 2, -1, 1, Q("43.25 in")))
sketch14.setExpression("Constraints[8]", "Params.sketch14_width")
sketch14.setExpression("Constraints[9]", "Params.sketch14_height")
pad14 = body22.newObject("PartDesign::Pad", "Pad013")
pad14.Profile = sketch14
pad14.setExpression("Length", "Params.pad14_length")
body23 = doc.addObject("PartDesign::Body", "Body022")

# Sketch on XY plane
sketch15 = body23.newObject("Sketcher::SketchObject", "Sketch014")
sketch15.AttachmentSupport = (doc.getObject("XY_Plane022"), [""])
sketch15.MapMode = "FlatFace"
add_polygon(sketch15, [(-1099, 438), (-1080, 438), (-1080, -19), (-1099, -38)])  # lines 0-3
sketch15.addConstraint(Sketcher.Constraint("Horizontal", 0))
sketch15.addConstraint(Sketcher.Constraint("Vertical", 1))
sketch15.addConstraint(Sketcher.Constraint("Vertical", 3))
sketch15.addConstraint(Sketcher.Constraint("DistanceY", 1, 2, 1, 1, Q("18 in")))
sketch15.addConstraint(Sketcher.Constraint("Angle", 2, Q("-135 deg")))
sketch15.addConstraint(Sketcher.Constraint("DistanceX", 0, 1, 0, 2, Q("0.75 in")))
sketch15.addConstraint(Sketcher.Constraint("DistanceX", 0, 2, -1, 1, Q("42.5 in")))
sketch15.addConstraint(Sketcher.Constraint("DistanceY", 2, 2, -1, 1, Q("1.5 in")))
sketch15.setExpression("Constraints[7]", "Params.sketch15_height")
sketch15.setExpression("Constraints[9]", "Params.sketch15_width")
pad15 = body23.newObject("PartDesign::Pad", "Pad014")
pad15.Profile = sketch15
pad15.setExpression("Length", "Params.pad15_length")
body24 = doc.addObject("PartDesign::Body", "Body023")

# Sketch on XY plane
sketch16 = body24.newObject("Sketcher::SketchObject", "Sketch015")
sketch16.AttachmentSupport = (doc.getObject("XY_Plane023"), [""])
sketch16.MapMode = "FlatFace"
add_polygon(sketch16, [(0, -19), (0, 438), (19, 438), (19, -38)])  # lines 0-3
sketch16.addConstraint(Sketcher.Constraint("Vertical", 0))
sketch16.addConstraint(Sketcher.Constraint("Horizontal", 1))
sketch16.addConstraint(Sketcher.Constraint("Vertical", 2))
sketch16.addConstraint(Sketcher.Constraint("PointOnObject", 0, 2, -2))
sketch16.addConstraint(Sketcher.Constraint("DistanceY", 0, 1, 0, 2, Q("18 in")))
sketch16.addConstraint(Sketcher.Constraint("Angle", 3, Q("135 deg")))
sketch16.addConstraint(Sketcher.Constraint("DistanceX", 1, 1, 1, 2, Q("0.75 in")))
sketch16.addConstraint(Sketcher.Constraint("DistanceY", 2, 2, -1, 1, Q("1.5 in")))
sketch16.setExpression("Constraints[8]", "Params.sketch16_height")
sketch16.setExpression("Constraints[10]", "Params.sketch16_width")
pad16 = body24.newObject("PartDesign::Pad", "Pad015")
pad16.Profile = sketch16
pad16.setExpression("Length", "Params.pad16_length")
body25 = doc.addObject("PartDesign::Body", "Body024")

# Sketch on XY plane
sketch17 = body25.newObject("Sketcher::SketchObject", "Sketch016")
sketch17.AttachmentSupport = (doc.getObject("XY_Plane024"), [""])
sketch17.MapMode = "FlatFace"
add_polygon(sketch17, [(-1080, -19), (0, -19), (19, -38), (-1099, -38)])  # lines 0-3
sketch17.addConstraint(Sketcher.Constraint("Horizontal", 0))
sketch17.addConstraint(Sketcher.Constraint("Horizontal", 2))
sketch17.addConstraint(Sketcher.Constraint("PointOnObject", 0, 2, -2))
sketch17.addConstraint(Sketcher.Constraint("Perpendicular", 1, 3))
sketch17.addConstraint(Sketcher.Constraint("Equal", 1, 3))
sketch17.addConstraint(Sketcher.Constraint("DistanceX", 2, 2, 2, 1, Q("44 in")))
sketch17.addConstraint(Sketcher.Constraint("DistanceX", 0, 1, 0, 2, Q("42.5 in")))
sketch17.addConstraint(Sketcher.Constraint("DistanceY", 1, 2, -1, 1, Q("1.5 in")))
sketch17.setExpression("Constraints[9]", "Params.sketch17_width")
sketch17.setExpression("Constraints[10]", "Params.sketch17_width2")
pad17 = body25.newObject("PartDesign::Pad", "Pad016")
pad17.Profile = sketch17
pad17.setExpression("Length", "Params.pad17_length")

# Sketch on XZ plane
sketch18 = body25.newObject("Sketcher::SketchObject", "Sketch017")
sketch18.AttachmentSupport = (doc.getObject("XZ_Plane024"), [""])
sketch18.MapMode = "FlatFace"
sketch18.AttachmentOffset = App.Placement(App.Vector(0, 0, 1.5 * 25.4), App.Rotation())
sketch18.addGeometry(Part.LineSegment(App.Vector(-108, 13, 0), App.Vector(-972, 13, 0)), False)
sketch18.addGeometry(Part.ArcOfCircle(Part.Circle(App.Vector(-972, -19, 0), App.Vector(0, 0, 1), 32), math.radians(90), math.radians(143)), False)
sketch18.addGeometry(Part.LineSegment(App.Vector(-997, 0, 0), App.Vector(-83, 0, 0)), False)
sketch18.addGeometry(Part.ArcOfCircle(Part.Circle(App.Vector(-108, -19, 0), App.Vector(0, 0, 1), 32), math.radians(37), math.radians(90)), False)
sketch18.addConstraint(Sketcher.Constraint("Tangent", 0, 2, 1, 1))
sketch18.addConstraint(Sketcher.Constraint("Coincident", 1, 2, 2, 1))
sketch18.addConstraint(Sketcher.Constraint("Coincident", 2, 2, 3, 1))
sketch18.addConstraint(Sketcher.Constraint("Tangent", 3, 2, 0, 1))
sketch18.addConstraint(Sketcher.Constraint("Horizontal", 0))
sketch18.addConstraint(Sketcher.Constraint("Horizontal", 2))
sketch18.addConstraint(Sketcher.Constraint("Equal", 1, 3))
sketch18.addConstraint(Sketcher.Constraint("PointOnObject", 1, 2, -1))
sketch18.addConstraint(Sketcher.Constraint("DistanceX", 0, 2, 0, 1, Q("34 in")))
sketch18.addConstraint(Sketcher.Constraint("DistanceX", 2, 1, 2, 2, Q("36 in")))
sketch18.addConstraint(Sketcher.Constraint("Radius", 1, Q("1.25 in")))
sketch18.addConstraint(Sketcher.Constraint("DistanceX", 1, 3, -1, 1, Q("38.25 in")))
sketch18.setExpression("Constraints[8]", "Params.sketch18_width")
sketch18.setExpression("Constraints[9]", "Params.sketch18_width2")
sketch18.setExpression("Constraints[10]", "Params.sketch18_radius")
pocket1 = body25.newObject("PartDesign::Pocket", "Pocket")
pocket1.Profile = sketch18
pocket1.setExpression("Length", "Params.pocket1_length")

doc.recompute()
